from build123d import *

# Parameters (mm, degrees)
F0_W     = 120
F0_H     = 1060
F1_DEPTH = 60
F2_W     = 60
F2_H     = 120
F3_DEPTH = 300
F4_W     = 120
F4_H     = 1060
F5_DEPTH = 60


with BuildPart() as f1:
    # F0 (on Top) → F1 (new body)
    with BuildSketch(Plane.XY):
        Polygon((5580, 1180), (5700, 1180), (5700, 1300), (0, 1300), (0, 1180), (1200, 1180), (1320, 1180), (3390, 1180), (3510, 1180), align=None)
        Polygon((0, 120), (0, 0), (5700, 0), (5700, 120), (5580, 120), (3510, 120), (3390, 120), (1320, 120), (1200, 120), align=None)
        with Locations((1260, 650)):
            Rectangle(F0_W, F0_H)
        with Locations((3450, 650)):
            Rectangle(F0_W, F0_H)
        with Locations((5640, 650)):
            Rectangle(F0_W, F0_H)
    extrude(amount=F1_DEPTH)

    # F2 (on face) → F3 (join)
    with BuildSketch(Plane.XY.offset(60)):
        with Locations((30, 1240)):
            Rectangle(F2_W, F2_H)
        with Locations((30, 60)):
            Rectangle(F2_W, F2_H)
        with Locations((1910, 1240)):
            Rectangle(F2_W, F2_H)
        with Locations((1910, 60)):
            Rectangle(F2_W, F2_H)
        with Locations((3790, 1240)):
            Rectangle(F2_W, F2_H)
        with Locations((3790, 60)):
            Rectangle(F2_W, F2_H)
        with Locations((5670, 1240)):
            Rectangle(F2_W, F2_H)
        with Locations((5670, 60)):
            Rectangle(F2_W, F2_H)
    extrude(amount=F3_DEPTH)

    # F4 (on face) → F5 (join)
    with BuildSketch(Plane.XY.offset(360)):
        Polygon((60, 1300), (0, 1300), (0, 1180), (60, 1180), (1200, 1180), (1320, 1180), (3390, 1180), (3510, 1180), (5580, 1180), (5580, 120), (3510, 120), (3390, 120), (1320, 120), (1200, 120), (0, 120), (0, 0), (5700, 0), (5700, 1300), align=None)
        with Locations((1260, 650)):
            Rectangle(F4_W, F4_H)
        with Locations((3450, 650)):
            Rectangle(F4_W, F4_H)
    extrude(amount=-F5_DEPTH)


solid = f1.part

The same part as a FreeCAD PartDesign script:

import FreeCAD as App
import Part
import Sketcher
Q = App.Units.Quantity


def add_polygon(sketch, points):
    """Adds a closed chain of lines whose ends are joined by coincident constraints."""
    first, n = sketch.GeometryCount, len(points)
    for a, b in zip(points, points[1:] + points[:1]):
        sketch.addGeometry(Part.LineSegment(App.Vector(*a, 0), App.Vector(*b, 0)), False)
    for i in range(n):
        sketch.addConstraint(Sketcher.Constraint("Coincident", first + i, 2, first + (i + 1) % n, 1))

doc = App.newDocument("Part")
body = doc.addObject("PartDesign::Body", "Body")

sketch1 = doc.addObject("Sketcher::SketchObject", "Sketch")
body.addObject(sketch1)
sketch1.AttachmentSupport = (doc.XY_Plane, [""])
sketch1.MapMode = "FlatFace"
add_polygon(sketch1, [(5700, 1300), (0, 1300), (0, 1180), (1200, 1180), (1200, 120), (0, 120), (0, 0), (5700, 0)])
add_polygon(sketch1, [(5580, 120), (3510, 120), (3510, 1180), (5580, 1180)])
add_polygon(sketch1, [(3390, 120), (1320, 120), (1320, 1180), (3390, 1180)])
sketch1.addConstraint(Sketcher.Constraint("Horizontal", 0))
sketch1.addConstraint(Sketcher.Constraint("Vertical", 1))
sketch1.addConstraint(Sketcher.Constraint("Horizontal", 2))
sketch1.addConstraint(Sketcher.Constraint("Vertical", 3))
sketch1.addConstraint(Sketcher.Constraint("Horizontal", 4))
sketch1.addConstraint(Sketcher.Constraint("Vertical", 5))
sketch1.addConstraint(Sketcher.Constraint("Horizontal", 6))
sketch1.addConstraint(Sketcher.Constraint("Vertical", 7))
sketch1.addConstraint(Sketcher.Constraint("Horizontal", 8))
sketch1.addConstraint(Sketcher.Constraint("Vertical", 9))
sketch1.addConstraint(Sketcher.Constraint("Horizontal", 10))
sketch1.addConstraint(Sketcher.Constraint("Vertical", 11))
sketch1.addConstraint(Sketcher.Constraint("Horizontal", 12))
sketch1.addConstraint(Sketcher.Constraint("Vertical", 13))
sketch1.addConstraint(Sketcher.Constraint("Horizontal", 14))
sketch1.addConstraint(Sketcher.Constraint("Vertical", 15))
sketch1.addConstraint(Sketcher.Constraint("Coincident", 5, 2, -1, 1))
sketch1.addConstraint(Sketcher.Constraint("PointOnObject", 0, 2, -2))
sketch1.addConstraint(Sketcher.Constraint("Horizontal", 4, 2, 8, 2))
sketch1.addConstraint(Sketcher.Constraint("Horizontal", 2, 2, 9, 2))
sketch1.addConstraint(Sketcher.Constraint("Horizontal", 11, 2, 12, 2))
sketch1.addConstraint(Sketcher.Constraint("Horizontal", 10, 2, 13, 2))
sketch1.addConstraint(Sketcher.Constraint("Equal", 10, 12))
sketch1.addConstraint(Sketcher.Constraint("Equal", 1, 5))
sketch1.addConstraint(Sketcher.Constraint("DistanceX", 0, 2, 0, 1, Q("5700 mm")))
sketch1.addConstraint(Sketcher.Constraint("DistanceX", 2, 1, 2, 2, Q("1200 mm")))
sketch1.addConstraint(Sketcher.Constraint("DistanceX", 8, 2, 8, 1, Q("2070 mm")))
sketch1.addConstraint(Sketcher.Constraint("DistanceY", 1, 2, 1, 1, Q("120 mm")))
sketch1.addConstraint(Sketcher.Constraint("DistanceY", 3, 2, 3, 1, Q("1060 mm")))
sketch1.addConstraint(Sketcher.Constraint("DistanceX", -1, 1, 8, 2, Q("3510 mm")))
sketch1.addConstraint(Sketcher.Constraint("DistanceX", -1, 1, 12, 2, Q("1320 mm")))
pad1 = doc.addObject("PartDesign::Pad", "Pad")
body.addObject(pad1)
pad1.Profile = sketch1
pad1.Length = 60

sketch2 = doc.addObject("Sketcher::SketchObject", "Sketch001")
body.addObject(sketch2)
sketch2.AttachmentSupport = (doc.XY_Plane, [""])
sketch2.MapMode = "FlatFace"
sketch2.AttachmentOffset = App.Placement(App.Vector(0, 0, 60), App.Rotation())
add_polygon(sketch2, [(0, 1300), (0, 1180), (60, 1180), (60, 1300)])
add_polygon(sketch2, [(0, 120), (0, 0), (60, 0), (60, 120)])
add_polygon(sketch2, [(1880, 1300), (1880, 1180), (1940, 1180), (1940, 1300)])
add_polygon(sketch2, [(1880, 120), (1880, 0), (1940, 0), (1940, 120)])
add_polygon(sketch2, [(3760, 1300), (3760, 1180), (3820, 1180), (3820, 1300)])
add_polygon(sketch2, [(3760, 120), (3760, 0), (3820, 0), (3820, 120)])
add_polygon(sketch2, [(5640, 1300), (5640, 1180), (5700, 1180), (5700, 1300)])
add_polygon(sketch2, [(5640, 120), (5640, 0), (5700, 0), (5700, 120)])
sketch2.addConstraint(Sketcher.Constraint("Vertical", 0))
sketch2.addConstraint(Sketcher.Constraint("Horizontal", 1))
sketch2.addConstraint(Sketcher.Constraint("Vertical", 2))
sketch2.addConstraint(Sketcher.Constraint("Horizontal", 3))
sketch2.addConstraint(Sketcher.Constraint("Vertical", 4))
sketch2.addConstraint(Sketcher.Constraint("Horizontal", 5))
sketch2.addConstraint(Sketcher.Constraint("Vertical", 6))
sketch2.addConstraint(Sketcher.Constraint("Horizontal", 7))
sketch2.addConstraint(Sketcher.Constraint("Vertical", 8))
sketch2.addConstraint(Sketcher.Constraint("Horizontal", 9))
sketch2.addConstraint(Sketcher.Constraint("Vertical", 10))
sketch2.addConstraint(Sketcher.Constraint("Horizontal", 11))
sketch2.addConstraint(Sketcher.Constraint("Vertical", 12))
sketch2.addConstraint(Sketcher.Constraint("Horizontal", 13))
sketch2.addConstraint(Sketcher.Constraint("Vertical", 14))
sketch2.addConstraint(Sketcher.Constraint("Horizontal", 15))
sketch2.addConstraint(Sketcher.Constraint("Vertical", 16))
sketch2.addConstraint(Sketcher.Constraint("Horizontal", 17))
sketch2.addConstraint(Sketcher.Constraint("Vertical", 18))
sketch2.addConstraint(Sketcher.Constraint("Horizontal", 19))
sketch2.addConstraint(Sketcher.Constraint("Vertical", 20))
sketch2.addConstraint(Sketcher.Constraint("Horizontal", 21))
sketch2.addConstraint(Sketcher.Constraint("Vertical", 22))
sketch2.addConstraint(Sketcher.Constraint("Horizontal", 23))
sketch2.addConstraint(Sketcher.Constraint("Vertical", 24))
sketch2.addConstraint(Sketcher.Constraint("Horizontal", 25))
sketch2.addConstraint(Sketcher.Constraint("Vertical", 26))
sketch2.addConstraint(Sketcher.Constraint("Horizontal", 27))
sketch2.addConstraint(Sketcher.Constraint("Vertical", 28))
sketch2.addConstraint(Sketcher.Constraint("Horizontal", 29))
sketch2.addConstraint(Sketcher.Constraint("Vertical", 30))
sketch2.addConstraint(Sketcher.Constraint("Horizontal", 31))
sketch2.addConstraint(Sketcher.Constraint("Coincident", 4, 2, -1, 1))
sketch2.addConstraint(Sketcher.Constraint("PointOnObject", 0, 2, -2))
sketch2.addConstraint(Sketcher.Constraint("PointOnObject", 12, 2, -1))
sketch2.addConstraint(Sketcher.Constraint("PointOnObject", 20, 2, -1))
sketch2.addConstraint(Sketcher.Constraint("PointOnObject", 28, 2, -1))
sketch2.addConstraint(Sketcher.Constraint("Horizontal", 1, 2, 8, 2))
sketch2.addConstraint(Sketcher.Constraint("Horizontal", 3, 2, 10, 2))
sketch2.addConstraint(Sketcher.Constraint("Horizontal", 7, 2, 14, 2))
sketch2.addConstraint(Sketcher.Constraint("Horizontal", 9, 2, 16, 2))
sketch2.addConstraint(Sketcher.Constraint("Horizontal", 11, 2, 18, 2))
sketch2.addConstraint(Sketcher.Constraint("Horizontal", 15, 2, 22, 2))
sketch2.addConstraint(Sketcher.Constraint("Horizontal", 17, 2, 24, 2))
sketch2.addConstraint(Sketcher.Constraint("Horizontal", 19, 2, 26, 2))
sketch2.addConstraint(Sketcher.Constraint("Horizontal", 23, 2, 30, 2))
sketch2.addConstraint(Sketcher.Constraint("Vertical", 2, 2, 5, 2))
sketch2.addConstraint(Sketcher.Constraint("Vertical", 11, 2, 12, 2))
sketch2.addConstraint(Sketcher.Constraint("Vertical", 10, 2, 13, 2))
sketch2.addConstraint(Sketcher.Constraint("Vertical", 19, 2, 20, 2))
sketch2.addConstraint(Sketcher.Constraint("Vertical", 18, 2, 21, 2))
sketch2.addConstraint(Sketcher.Constraint("Vertical", 27, 2, 28, 2))
sketch2.addConstraint(Sketcher.Constraint("Vertical", 26, 2, 29, 2))
sketch2.addConstraint(Sketcher.Constraint("Equal", 7, 9))
sketch2.addConstraint(Sketcher.Constraint("Equal", 15, 17))
sketch2.addConstraint(Sketcher.Constraint("Equal", 23, 25))
sketch2.addConstraint(Sketcher.Constraint("Equal", 2, 4))
sketch2.addConstraint(Sketcher.Constraint("DistanceX", 1, 1, 1, 2, Q("60 mm")))
sketch2.addConstraint(Sketcher.Constraint("DistanceY", 0, 2, 0, 1, Q("120 mm")))
sketch2.addConstraint(Sketcher.Constraint("DistanceY", -1, 1, 0, 2, Q("1180 mm")))
sketch2.addConstraint(Sketcher.Constraint("DistanceX", -1, 1, 8, 2, Q("1880 mm")))
sketch2.addConstraint(Sketcher.Constraint("DistanceX", -1, 1, 16, 2, Q("3760 mm")))
sketch2.addConstraint(Sketcher.Constraint("DistanceX", -1, 1, 24, 2, Q("5640 mm")))
pad2 = doc.addObject("PartDesign::Pad", "Pad001")
body.addObject(pad2)
pad2.Profile = sketch2
pad2.Length = 300

sketch3 = doc.addObject("Sketcher::SketchObject", "Sketch002")
body.addObject(sketch3)
sketch3.AttachmentSupport = (doc.XY_Plane, [""])
sketch3.MapMode = "FlatFace"
sketch3.AttachmentOffset = App.Placement(App.Vector(0, 0, 360), App.Rotation())
add_polygon(sketch3, [(0, 1300), (0, 1180), (1200, 1180), (1200, 120), (0, 120), (0, 0), (5700, 0), (5700, 1300)])
add_polygon(sketch3, [(1320, 1180), (3390, 1180), (3390, 120), (1320, 120)])
add_polygon(sketch3, [(3510, 1180), (5580, 1180), (5580, 120), (3510, 120)])
sketch3.addConstraint(Sketcher.Constraint("Vertical", 0))
sketch3.addConstraint(Sketcher.Constraint("Horizontal", 1))
sketch3.addConstraint(Sketcher.Constraint("Vertical", 2))
sketch3.addConstraint(Sketcher.Constraint("Horizontal", 3))
sketch3.addConstraint(Sketcher.Constraint("Vertical", 4))
sketch3.addConstraint(Sketcher.Constraint("Horizontal", 5))
sketch3.addConstraint(Sketcher.Constraint("Vertical", 6))
sketch3.addConstraint(Sketcher.Constraint("Horizontal", 7))
sketch3.addConstraint(Sketcher.Constraint("Horizontal", 8))
sketch3.addConstraint(Sketcher.Constraint("Vertical", 9))
sketch3.addConstraint(Sketcher.Constraint("Horizontal", 10))
sketch3.addConstraint(Sketcher.Constraint("Vertical", 11))
sketch3.addConstraint(Sketcher.Constraint("Horizontal", 12))
sketch3.addConstraint(Sketcher.Constraint("Vertical", 13))
sketch3.addConstraint(Sketcher.Constraint("Horizontal", 14))
sketch3.addConstraint(Sketcher.Constraint("Vertical", 15))
sketch3.addConstraint(Sketcher.Constraint("Coincident", 4, 2, -1, 1))
sketch3.addConstraint(Sketcher.Constraint("PointOnObject", 0, 2, -2))
sketch3.addConstraint(Sketcher.Constraint("Horizontal", 1, 2, 8, 2))
sketch3.addConstraint(Sketcher.Constraint("Horizontal", 3, 2, 9, 2))
sketch3.addConstraint(Sketcher.Constraint("Horizontal", 11, 2, 12, 2))
sketch3.addConstraint(Sketcher.Constraint("Horizontal", 10, 2, 13, 2))
sketch3.addConstraint(Sketcher.Constraint("Equal", 10, 12))
sketch3.addConstraint(Sketcher.Constraint("Equal", 0, 4))
sketch3.addConstraint(Sketcher.Constraint("DistanceX", 1, 1, 1, 2, Q("1200 mm")))
sketch3.addConstraint(Sketcher.Constraint("DistanceX", 5, 1, 5, 2, Q("5700 mm")))
sketch3.addConstraint(Sketcher.Constraint("DistanceX", 8, 1, 8, 2, Q("2070 mm")))
sketch3.addConstraint(Sketcher.Constraint("DistanceY", 0, 2, 0, 1, Q("120 mm")))
sketch3.addConstraint(Sketcher.Constraint("DistanceY", 2, 2, 2, 1, Q("1060 mm")))
sketch3.addConstraint(Sketcher.Constraint("DistanceX", -1, 1, 8, 2, Q("3390 mm")))
sketch3.addConstraint(Sketcher.Constraint("DistanceX", -1, 1, 12, 2, Q("5580 mm")))
pad3 = doc.addObject("PartDesign::Pad", "Pad002")
body.addObject(pad3)
pad3.Profile = sketch3
pad3.Length = 60
pad3.Reversed = True

doc.recompute()
